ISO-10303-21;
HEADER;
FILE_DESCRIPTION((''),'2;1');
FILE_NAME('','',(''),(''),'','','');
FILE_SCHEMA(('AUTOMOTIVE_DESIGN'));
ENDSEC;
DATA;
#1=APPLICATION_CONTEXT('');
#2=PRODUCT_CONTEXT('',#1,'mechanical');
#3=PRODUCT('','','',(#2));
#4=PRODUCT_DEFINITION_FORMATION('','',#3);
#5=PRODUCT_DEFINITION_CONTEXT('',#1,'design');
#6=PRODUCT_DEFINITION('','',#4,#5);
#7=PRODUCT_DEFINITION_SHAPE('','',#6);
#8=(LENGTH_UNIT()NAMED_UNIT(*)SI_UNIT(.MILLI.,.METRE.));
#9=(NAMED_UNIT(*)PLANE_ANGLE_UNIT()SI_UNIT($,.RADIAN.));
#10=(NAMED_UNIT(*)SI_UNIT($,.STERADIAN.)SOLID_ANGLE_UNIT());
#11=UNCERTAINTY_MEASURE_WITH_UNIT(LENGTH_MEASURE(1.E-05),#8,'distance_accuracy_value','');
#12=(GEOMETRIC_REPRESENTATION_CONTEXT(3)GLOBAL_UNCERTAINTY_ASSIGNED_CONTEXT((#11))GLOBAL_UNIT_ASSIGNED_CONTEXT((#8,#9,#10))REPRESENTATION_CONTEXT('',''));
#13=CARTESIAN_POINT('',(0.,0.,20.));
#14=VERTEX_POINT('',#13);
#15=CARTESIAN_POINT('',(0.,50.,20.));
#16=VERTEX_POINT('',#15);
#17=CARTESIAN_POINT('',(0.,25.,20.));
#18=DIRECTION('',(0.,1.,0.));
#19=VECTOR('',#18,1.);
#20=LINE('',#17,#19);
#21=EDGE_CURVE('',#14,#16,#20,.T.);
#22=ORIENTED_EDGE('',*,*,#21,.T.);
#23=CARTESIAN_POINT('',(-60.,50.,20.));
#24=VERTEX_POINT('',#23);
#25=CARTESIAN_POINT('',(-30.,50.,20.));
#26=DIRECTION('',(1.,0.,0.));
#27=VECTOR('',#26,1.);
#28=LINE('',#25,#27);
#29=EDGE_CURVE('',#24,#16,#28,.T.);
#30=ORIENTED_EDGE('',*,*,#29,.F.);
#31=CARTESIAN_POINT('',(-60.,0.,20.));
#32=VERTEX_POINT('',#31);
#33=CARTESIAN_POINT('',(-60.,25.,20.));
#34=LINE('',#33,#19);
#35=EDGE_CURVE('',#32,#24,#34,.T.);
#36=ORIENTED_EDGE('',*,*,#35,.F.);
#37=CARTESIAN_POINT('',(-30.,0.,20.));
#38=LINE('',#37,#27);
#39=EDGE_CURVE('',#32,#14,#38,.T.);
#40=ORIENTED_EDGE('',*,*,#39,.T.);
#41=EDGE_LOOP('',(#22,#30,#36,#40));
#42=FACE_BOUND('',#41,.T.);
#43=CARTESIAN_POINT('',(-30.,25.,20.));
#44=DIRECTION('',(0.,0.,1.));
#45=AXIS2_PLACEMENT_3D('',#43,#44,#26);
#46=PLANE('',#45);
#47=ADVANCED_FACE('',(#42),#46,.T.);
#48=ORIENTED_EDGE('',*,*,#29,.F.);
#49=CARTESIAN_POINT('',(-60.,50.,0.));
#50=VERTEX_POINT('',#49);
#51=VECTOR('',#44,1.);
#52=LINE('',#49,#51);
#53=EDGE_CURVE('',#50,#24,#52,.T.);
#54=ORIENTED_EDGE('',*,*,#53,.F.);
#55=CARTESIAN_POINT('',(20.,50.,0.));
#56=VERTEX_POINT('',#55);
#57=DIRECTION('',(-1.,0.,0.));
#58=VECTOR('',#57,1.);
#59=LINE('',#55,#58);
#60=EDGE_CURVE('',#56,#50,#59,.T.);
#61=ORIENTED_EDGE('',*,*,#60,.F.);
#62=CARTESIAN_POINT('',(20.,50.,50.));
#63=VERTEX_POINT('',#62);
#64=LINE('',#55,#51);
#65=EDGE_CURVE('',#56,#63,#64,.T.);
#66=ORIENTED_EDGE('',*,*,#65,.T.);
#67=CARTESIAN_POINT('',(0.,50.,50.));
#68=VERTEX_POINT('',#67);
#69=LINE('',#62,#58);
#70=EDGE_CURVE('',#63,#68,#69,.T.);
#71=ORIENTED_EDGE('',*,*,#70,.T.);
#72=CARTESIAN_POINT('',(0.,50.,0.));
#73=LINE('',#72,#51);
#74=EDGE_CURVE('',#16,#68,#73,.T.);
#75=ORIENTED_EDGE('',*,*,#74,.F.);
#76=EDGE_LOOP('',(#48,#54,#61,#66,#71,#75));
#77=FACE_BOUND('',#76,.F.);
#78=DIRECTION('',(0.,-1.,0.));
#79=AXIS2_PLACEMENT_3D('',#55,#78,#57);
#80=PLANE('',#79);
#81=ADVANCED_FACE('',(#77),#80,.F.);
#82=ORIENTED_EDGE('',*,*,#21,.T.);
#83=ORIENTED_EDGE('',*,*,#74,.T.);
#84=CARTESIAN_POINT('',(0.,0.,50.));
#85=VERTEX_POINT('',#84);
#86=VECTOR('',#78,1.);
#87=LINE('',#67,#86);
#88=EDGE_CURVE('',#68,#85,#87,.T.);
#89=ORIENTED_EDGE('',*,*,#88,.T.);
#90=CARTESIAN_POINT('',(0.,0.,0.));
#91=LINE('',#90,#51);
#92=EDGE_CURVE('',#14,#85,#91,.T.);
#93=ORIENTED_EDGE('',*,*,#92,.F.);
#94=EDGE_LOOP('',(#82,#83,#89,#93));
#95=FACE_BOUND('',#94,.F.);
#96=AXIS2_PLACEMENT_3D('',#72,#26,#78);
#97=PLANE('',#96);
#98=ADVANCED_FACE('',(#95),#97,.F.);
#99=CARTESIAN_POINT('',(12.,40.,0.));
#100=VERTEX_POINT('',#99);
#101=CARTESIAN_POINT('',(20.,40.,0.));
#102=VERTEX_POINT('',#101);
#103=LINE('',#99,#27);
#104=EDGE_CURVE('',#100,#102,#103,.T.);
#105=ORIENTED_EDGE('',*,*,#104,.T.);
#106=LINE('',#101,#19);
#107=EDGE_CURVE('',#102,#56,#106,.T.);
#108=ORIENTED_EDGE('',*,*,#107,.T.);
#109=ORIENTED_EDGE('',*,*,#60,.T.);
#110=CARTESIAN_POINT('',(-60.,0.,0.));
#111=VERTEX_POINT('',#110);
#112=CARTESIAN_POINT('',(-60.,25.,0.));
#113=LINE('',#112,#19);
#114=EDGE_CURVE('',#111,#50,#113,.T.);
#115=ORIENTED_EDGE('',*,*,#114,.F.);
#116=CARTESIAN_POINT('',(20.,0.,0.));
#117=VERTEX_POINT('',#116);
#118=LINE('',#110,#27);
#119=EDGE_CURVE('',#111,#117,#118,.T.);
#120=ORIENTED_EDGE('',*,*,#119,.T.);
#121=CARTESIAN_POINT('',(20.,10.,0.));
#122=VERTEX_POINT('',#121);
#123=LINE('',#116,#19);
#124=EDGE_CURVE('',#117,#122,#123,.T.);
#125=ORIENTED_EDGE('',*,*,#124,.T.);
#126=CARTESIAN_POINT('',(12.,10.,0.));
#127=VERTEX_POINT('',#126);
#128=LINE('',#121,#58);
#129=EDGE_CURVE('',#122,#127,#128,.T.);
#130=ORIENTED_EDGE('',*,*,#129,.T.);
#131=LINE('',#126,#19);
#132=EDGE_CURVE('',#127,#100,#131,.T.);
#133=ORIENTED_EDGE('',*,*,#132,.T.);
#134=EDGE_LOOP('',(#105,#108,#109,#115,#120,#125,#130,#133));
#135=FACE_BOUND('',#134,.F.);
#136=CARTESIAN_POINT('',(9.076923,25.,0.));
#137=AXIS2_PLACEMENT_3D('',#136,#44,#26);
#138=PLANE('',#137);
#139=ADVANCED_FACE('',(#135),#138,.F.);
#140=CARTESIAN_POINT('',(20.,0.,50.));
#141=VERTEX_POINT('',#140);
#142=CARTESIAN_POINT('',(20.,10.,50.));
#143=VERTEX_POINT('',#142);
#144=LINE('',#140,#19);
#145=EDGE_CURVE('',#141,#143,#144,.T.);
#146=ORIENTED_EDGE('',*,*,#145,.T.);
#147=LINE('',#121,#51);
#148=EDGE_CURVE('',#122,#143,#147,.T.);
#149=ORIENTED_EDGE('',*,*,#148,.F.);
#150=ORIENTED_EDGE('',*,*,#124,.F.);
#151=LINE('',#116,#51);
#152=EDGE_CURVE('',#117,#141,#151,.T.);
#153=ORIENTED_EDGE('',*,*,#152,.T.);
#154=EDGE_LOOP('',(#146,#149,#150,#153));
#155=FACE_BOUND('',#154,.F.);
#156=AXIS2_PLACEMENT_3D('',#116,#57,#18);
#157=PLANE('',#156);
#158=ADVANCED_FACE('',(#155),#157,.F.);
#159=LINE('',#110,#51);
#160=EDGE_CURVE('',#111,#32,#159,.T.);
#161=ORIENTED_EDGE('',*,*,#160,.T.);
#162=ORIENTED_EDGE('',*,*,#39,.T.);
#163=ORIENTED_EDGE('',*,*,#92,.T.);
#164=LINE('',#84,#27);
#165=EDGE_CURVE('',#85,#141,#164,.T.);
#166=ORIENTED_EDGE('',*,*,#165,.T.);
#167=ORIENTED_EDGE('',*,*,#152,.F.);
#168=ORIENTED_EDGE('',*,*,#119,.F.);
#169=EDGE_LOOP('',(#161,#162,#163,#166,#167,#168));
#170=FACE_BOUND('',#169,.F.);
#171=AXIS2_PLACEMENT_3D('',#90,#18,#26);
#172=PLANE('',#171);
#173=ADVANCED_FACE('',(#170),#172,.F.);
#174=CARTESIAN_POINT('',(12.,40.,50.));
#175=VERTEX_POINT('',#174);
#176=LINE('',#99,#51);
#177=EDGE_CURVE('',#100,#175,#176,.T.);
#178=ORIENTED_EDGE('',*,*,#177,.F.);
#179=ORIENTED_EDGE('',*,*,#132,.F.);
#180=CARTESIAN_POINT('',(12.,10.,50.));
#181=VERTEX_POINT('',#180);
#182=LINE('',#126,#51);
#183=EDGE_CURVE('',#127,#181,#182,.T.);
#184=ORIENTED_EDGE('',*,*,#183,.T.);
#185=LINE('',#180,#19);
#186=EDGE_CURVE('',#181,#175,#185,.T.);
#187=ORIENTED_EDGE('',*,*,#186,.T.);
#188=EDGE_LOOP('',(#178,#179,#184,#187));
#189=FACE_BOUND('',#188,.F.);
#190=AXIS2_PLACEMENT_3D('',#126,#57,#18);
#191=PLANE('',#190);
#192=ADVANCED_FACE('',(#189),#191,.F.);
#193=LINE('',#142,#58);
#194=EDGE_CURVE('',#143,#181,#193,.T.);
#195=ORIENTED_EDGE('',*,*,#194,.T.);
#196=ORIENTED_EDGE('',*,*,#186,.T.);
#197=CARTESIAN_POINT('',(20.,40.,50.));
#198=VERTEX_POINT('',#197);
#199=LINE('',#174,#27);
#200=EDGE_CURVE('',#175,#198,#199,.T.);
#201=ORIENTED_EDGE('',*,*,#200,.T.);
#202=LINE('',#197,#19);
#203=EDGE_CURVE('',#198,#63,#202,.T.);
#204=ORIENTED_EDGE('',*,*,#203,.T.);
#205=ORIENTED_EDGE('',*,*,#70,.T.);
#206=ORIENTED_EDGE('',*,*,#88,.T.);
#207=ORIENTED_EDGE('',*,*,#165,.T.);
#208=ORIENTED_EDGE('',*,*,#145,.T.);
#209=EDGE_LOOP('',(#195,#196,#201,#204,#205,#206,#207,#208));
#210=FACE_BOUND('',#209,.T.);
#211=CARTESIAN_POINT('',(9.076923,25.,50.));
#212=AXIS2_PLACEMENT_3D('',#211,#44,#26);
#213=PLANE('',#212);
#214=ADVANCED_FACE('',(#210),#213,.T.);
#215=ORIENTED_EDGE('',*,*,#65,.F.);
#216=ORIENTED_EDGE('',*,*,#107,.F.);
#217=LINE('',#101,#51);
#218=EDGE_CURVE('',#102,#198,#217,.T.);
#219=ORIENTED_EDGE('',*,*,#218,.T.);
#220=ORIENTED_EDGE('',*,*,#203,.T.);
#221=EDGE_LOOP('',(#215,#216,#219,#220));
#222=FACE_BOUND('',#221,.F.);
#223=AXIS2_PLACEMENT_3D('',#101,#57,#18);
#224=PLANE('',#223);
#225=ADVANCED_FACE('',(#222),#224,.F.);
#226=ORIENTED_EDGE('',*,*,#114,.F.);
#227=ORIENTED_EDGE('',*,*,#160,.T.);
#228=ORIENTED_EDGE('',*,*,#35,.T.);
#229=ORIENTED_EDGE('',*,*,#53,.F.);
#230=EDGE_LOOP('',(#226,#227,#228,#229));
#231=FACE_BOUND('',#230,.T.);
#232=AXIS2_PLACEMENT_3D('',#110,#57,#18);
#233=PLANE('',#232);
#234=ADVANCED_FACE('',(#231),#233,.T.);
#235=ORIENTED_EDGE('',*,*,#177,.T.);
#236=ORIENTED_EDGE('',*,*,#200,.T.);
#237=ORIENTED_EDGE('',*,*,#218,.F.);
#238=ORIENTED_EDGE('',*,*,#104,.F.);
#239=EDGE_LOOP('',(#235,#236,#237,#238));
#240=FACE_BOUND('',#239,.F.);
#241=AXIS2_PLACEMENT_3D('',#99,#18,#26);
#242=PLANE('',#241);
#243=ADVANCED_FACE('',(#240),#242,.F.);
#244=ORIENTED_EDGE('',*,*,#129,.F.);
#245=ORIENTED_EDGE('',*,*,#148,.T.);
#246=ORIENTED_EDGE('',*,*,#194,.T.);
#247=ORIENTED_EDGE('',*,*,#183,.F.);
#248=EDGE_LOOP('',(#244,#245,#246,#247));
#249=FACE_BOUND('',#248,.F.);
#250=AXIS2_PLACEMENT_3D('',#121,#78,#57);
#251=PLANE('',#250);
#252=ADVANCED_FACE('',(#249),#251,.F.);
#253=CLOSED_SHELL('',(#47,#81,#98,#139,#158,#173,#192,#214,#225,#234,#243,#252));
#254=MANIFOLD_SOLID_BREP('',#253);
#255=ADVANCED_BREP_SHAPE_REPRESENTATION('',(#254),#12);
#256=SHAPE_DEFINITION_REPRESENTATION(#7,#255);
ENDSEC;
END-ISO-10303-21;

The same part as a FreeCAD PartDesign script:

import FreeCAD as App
import Part
import Sketcher


def add_polygon(sketch, points):
    """Adds a closed chain of lines whose ends are joined by coincident constraints."""
    first, n = sketch.GeometryCount, len(points)
    for a, b in zip(points, points[1:] + points[:1]):
        sketch.addGeometry(Part.LineSegment(App.Vector(*a, 0), App.Vector(*b, 0)), False)
    for i in range(n):
        sketch.addConstraint(Sketcher.Constraint("Coincident", first + i, 2, first + (i + 1) % n, 1))

doc = App.newDocument("Part")
body = doc.addObject("PartDesign::Body", "Body")

# Sketch on XY plane
sketch1 = body.newObject("Sketcher::SketchObject", "Sketch")
sketch1.AttachmentSupport = (doc.getObject("XY_Plane"), [""])
sketch1.MapMode = "FlatFace"
add_polygon(sketch1, [(-60, 50), (-60, 0), (0, 0), (0, 50)])  # lines 0-3
sketch1.addConstraint(Sketcher.Constraint("Vertical", 0))
sketch1.addConstraint(Sketcher.Constraint("Horizontal", 1))
sketch1.addConstraint(Sketcher.Constraint("Vertical", 2))
sketch1.addConstraint(Sketcher.Constraint("Horizontal", 3))
sketch1.addConstraint(Sketcher.Constraint("Coincident", 1, 2, -1, 1))
sketch1.addConstraint(Sketcher.Constraint("DistanceX", 1, 1, 1, 2, 60.0))
sketch1.addConstraint(Sketcher.Constraint("DistanceY", 0, 2, 0, 1, 50.0))
pad1 = body.newObject("PartDesign::Pad", "Pad")
pad1.Profile = sketch1
pad1.Length = 20

# Sketch on XY plane
sketch2 = body.newObject("Sketcher::SketchObject", "Sketch001")
sketch2.AttachmentSupport = (doc.getObject("XY_Plane"), [""])
sketch2.MapMode = "FlatFace"
add_polygon(sketch2, [(0, 50), (0, 0), (20, 0), (20, 10), (12, 10), (12, 40), (20, 40), (20, 50)])  # lines 0-7
sketch2.addConstraint(Sketcher.Constraint("Vertical", 0))
sketch2.addConstraint(Sketcher.Constraint("Horizontal", 1))
sketch2.addConstraint(Sketcher.Constraint("Vertical", 2))
sketch2.addConstraint(Sketcher.Constraint("Horizontal", 3))
sketch2.addConstraint(Sketcher.Constraint("Vertical", 4))
sketch2.addConstraint(Sketcher.Constraint("Horizontal", 5))
sketch2.addConstraint(Sketcher.Constraint("Vertical", 6))
sketch2.addConstraint(Sketcher.Constraint("Horizontal", 7))
sketch2.addConstraint(Sketcher.Constraint("Coincident", 0, 2, -1, 1))
sketch2.addConstraint(Sketcher.Constraint("Vertical", 2, 2, 5, 2))
sketch2.addConstraint(Sketcher.Constraint("Equal", 2, 6))
sketch2.addConstraint(Sketcher.Constraint("DistanceX", 1, 1, 1, 2, 20.0))
sketch2.addConstraint(Sketcher.Constraint("DistanceX", 3, 2, 3, 1, 8.0))
sketch2.addConstraint(Sketcher.Constraint("DistanceY", 0, 2, 0, 1, 50.0))
sketch2.addConstraint(Sketcher.Constraint("DistanceY", 2, 1, 2, 2, 10.0))
pad2 = body.newObject("PartDesign::Pad", "Pad001")
pad2.Profile = sketch2
pad2.Length = 50

doc.recompute()
